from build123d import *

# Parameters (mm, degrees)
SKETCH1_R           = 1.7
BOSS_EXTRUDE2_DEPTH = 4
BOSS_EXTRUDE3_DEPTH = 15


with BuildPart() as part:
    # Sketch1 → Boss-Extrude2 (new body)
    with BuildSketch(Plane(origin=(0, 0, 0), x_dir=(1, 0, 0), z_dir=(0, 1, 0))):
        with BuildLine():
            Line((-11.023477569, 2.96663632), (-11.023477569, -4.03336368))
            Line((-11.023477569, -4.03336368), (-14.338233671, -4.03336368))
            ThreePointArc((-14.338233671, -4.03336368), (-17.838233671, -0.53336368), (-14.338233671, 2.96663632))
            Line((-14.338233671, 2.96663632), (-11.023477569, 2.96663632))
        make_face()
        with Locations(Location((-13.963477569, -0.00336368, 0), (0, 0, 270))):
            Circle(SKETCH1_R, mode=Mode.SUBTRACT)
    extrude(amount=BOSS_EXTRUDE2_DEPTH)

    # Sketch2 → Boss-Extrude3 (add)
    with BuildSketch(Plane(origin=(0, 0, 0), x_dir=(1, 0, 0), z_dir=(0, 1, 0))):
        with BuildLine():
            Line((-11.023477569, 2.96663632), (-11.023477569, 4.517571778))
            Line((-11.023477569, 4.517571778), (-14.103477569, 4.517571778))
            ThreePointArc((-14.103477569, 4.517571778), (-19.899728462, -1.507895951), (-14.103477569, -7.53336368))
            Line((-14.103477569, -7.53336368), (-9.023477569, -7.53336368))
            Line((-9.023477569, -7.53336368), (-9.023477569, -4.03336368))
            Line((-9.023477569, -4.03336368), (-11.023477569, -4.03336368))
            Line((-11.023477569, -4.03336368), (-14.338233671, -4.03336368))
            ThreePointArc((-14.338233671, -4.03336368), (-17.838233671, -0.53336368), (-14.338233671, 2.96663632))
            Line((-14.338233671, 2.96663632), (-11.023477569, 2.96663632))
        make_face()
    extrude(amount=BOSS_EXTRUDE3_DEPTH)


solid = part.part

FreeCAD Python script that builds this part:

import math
import FreeCAD as App
import Part
import Sketcher
from FreeCAD import Vector

doc = App.newDocument("Part")
body = doc.addObject("PartDesign::Body", "Body")

sketch1 = body.newObject("Sketcher::SketchObject", "Sketch")
sketch1.AttachmentSupport = (doc.getObject("XZ_Plane"), [""])
sketch1.MapMode = "FlatFace"
sketch1.addGeometry(Part.LineSegment(Vector(-11.023478, 4.033364, 0), Vector(-11.023478, -2.966636, 0)), False)
sketch1.addGeometry(Part.LineSegment(Vector(-11.023478, -2.966636, 0), Vector(-14.338234, -2.966636, 0)), False)
sketch1.addGeometry(Part.ArcOfCircle(Part.Circle(Vector(-14.338234, 0.533364, 0), Vector(0, 0, 1), 3.5), math.radians(90), math.radians(270)), False)
sketch1.addGeometry(Part.LineSegment(Vector(-14.338234, 4.033364, 0), Vector(-11.023478, 4.033364, 0)), False)
sketch1.addGeometry(Part.Circle(Vector(-13.963478, 0.003364, 0), Vector(0, 0, 1), 1.7), False)
sketch1.addConstraint(Sketcher.Constraint("Coincident", 0, 2, 1, 1))
sketch1.addConstraint(Sketcher.Constraint("Tangent", 1, 2, 2, 2))
sketch1.addConstraint(Sketcher.Constraint("Tangent", 2, 1, 3, 1))
sketch1.addConstraint(Sketcher.Constraint("Coincident", 3, 2, 0, 1))
sketch1.addConstraint(Sketcher.Constraint("Vertical", 0))
sketch1.addConstraint(Sketcher.Constraint("Horizontal", 1))
sketch1.addConstraint(Sketcher.Constraint("Horizontal", 3))
sketch1.addConstraint(Sketcher.Constraint("Diameter", 4, 3.4))
sketch1.addConstraint(Sketcher.Constraint("Radius", 2, 3.5))
sketch1.addConstraint(Sketcher.Constraint("DistanceY", 4, 3, 2, 3, 0.53))
sketch1.addConstraint(Sketcher.Constraint("DistanceX", 4, 3, 0, 2, 2.94))
sketch1.addConstraint(Sketcher.Constraint("DistanceX", 1, 2, 1, 1, 3.314756))
sketch1.addConstraint(Sketcher.Constraint("DistanceX", 2, 3, -1, 1, 14.338234))
sketch1.addConstraint(Sketcher.Constraint("DistanceY", -1, 1, 2, 3, 0.533364))
pad1 = body.newObject("PartDesign::Pad", "Pad")
pad1.Profile = sketch1
pad1.Length = 4
pad1.Reversed = True

sketch2 = body.newObject("Sketcher::SketchObject", "Sketch001")
sketch2.AttachmentSupport = (doc.getObject("XZ_Plane"), [""])
sketch2.MapMode = "FlatFace"
sketch2.addGeometry(Part.LineSegment(Vector(-11.023478, -2.966636, 0), Vector(-11.023478, -4.517572, 0)), False)
sketch2.addGeometry(Part.LineSegment(Vector(-11.023478, -4.517572, 0), Vector(-14.103478, -4.517572, 0)), False)
sketch2.addGeometry(Part.ArcOfCircle(Part.Circle(Vector(-13.869728, 1.507896, 0), Vector(0, 0, 1), 6.03), math.radians(92.221591), math.radians(267.778409)), False)
sketch2.addGeometry(Part.LineSegment(Vector(-14.103478, 7.533364, 0), Vector(-9.023478, 7.533364, 0)), False)
sketch2.addGeometry(Part.LineSegment(Vector(-9.023478, 7.533364, 0), Vector(-9.023478, 4.033364, 0)), False)
sketch2.addGeometry(Part.LineSegment(Vector(-9.023478, 4.033364, 0), Vector(-14.338234, 4.033364, 0)), False)
sketch2.addGeometry(Part.ArcOfCircle(Part.Circle(Vector(-14.338234, 0.533364, 0), Vector(0, 0, 1), 3.5), math.radians(90), math.radians(270)), False)
sketch2.addGeometry(Part.LineSegment(Vector(-14.338234, -2.966636, 0), Vector(-11.023478, -2.966636, 0)), False)
sketch2.addConstraint(Sketcher.Constraint("Coincident", 0, 2, 1, 1))
sketch2.addConstraint(Sketcher.Constraint("Coincident", 1, 2, 2, 2))
sketch2.addConstraint(Sketcher.Constraint("Coincident", 2, 1, 3, 1))
sketch2.addConstraint(Sketcher.Constraint("Coincident", 3, 2, 4, 1))
sketch2.addConstraint(Sketcher.Constraint("Coincident", 4, 2, 5, 1))
sketch2.addConstraint(Sketcher.Constraint("Tangent", 5, 2, 6, 1))
sketch2.addConstraint(Sketcher.Constraint("Tangent", 6, 2, 7, 1))
sketch2.addConstraint(Sketcher.Constraint("Coincident", 7, 2, 0, 1))
sketch2.addConstraint(Sketcher.Constraint("Vertical", 0))
sketch2.addConstraint(Sketcher.Constraint("Horizontal", 1))
sketch2.addConstraint(Sketcher.Constraint("Horizontal", 3))
sketch2.addConstraint(Sketcher.Constraint("Vertical", 4))
sketch2.addConstraint(Sketcher.Constraint("Horizontal", 5))
sketch2.addConstraint(Sketcher.Constraint("Horizontal", 7))
sketch2.addConstraint(Sketcher.Constraint("Vertical", 1, 2, 2, 1))
sketch2.addConstraint(Sketcher.Constraint("Radius", 6, 3.5))
sketch2.addConstraint(Sketcher.Constraint("Radius", 2, 6.03))
sketch2.addConstraint(Sketcher.Constraint("DistanceY", 4, 2, 4, 1, 3.5))
sketch2.addConstraint(Sketcher.Constraint("DistanceX", 0, 2, 3, 2, 2.0))
sketch2.addConstraint(Sketcher.Constraint("DistanceX", 1, 2, 1, 1, 3.08))
sketch2.addConstraint(Sketcher.Constraint("DistanceX", 5, 2, 5, 1, 5.314756))
sketch2.addConstraint(Sketcher.Constraint("DistanceY", 0, 2, 0, 1, 1.550935))
sketch2.addConstraint(Sketcher.Constraint("DistanceX", 2, 3, -1, 1, 13.869728))
sketch2.addConstraint(Sketcher.Constraint("DistanceY", 0, 2, -1, 1, 4.517572))
pad2 = body.newObject("PartDesign::Pad", "Pad001")
pad2.Profile = sketch2
pad2.Length = 15
pad2.Reversed = True

doc.recompute()
